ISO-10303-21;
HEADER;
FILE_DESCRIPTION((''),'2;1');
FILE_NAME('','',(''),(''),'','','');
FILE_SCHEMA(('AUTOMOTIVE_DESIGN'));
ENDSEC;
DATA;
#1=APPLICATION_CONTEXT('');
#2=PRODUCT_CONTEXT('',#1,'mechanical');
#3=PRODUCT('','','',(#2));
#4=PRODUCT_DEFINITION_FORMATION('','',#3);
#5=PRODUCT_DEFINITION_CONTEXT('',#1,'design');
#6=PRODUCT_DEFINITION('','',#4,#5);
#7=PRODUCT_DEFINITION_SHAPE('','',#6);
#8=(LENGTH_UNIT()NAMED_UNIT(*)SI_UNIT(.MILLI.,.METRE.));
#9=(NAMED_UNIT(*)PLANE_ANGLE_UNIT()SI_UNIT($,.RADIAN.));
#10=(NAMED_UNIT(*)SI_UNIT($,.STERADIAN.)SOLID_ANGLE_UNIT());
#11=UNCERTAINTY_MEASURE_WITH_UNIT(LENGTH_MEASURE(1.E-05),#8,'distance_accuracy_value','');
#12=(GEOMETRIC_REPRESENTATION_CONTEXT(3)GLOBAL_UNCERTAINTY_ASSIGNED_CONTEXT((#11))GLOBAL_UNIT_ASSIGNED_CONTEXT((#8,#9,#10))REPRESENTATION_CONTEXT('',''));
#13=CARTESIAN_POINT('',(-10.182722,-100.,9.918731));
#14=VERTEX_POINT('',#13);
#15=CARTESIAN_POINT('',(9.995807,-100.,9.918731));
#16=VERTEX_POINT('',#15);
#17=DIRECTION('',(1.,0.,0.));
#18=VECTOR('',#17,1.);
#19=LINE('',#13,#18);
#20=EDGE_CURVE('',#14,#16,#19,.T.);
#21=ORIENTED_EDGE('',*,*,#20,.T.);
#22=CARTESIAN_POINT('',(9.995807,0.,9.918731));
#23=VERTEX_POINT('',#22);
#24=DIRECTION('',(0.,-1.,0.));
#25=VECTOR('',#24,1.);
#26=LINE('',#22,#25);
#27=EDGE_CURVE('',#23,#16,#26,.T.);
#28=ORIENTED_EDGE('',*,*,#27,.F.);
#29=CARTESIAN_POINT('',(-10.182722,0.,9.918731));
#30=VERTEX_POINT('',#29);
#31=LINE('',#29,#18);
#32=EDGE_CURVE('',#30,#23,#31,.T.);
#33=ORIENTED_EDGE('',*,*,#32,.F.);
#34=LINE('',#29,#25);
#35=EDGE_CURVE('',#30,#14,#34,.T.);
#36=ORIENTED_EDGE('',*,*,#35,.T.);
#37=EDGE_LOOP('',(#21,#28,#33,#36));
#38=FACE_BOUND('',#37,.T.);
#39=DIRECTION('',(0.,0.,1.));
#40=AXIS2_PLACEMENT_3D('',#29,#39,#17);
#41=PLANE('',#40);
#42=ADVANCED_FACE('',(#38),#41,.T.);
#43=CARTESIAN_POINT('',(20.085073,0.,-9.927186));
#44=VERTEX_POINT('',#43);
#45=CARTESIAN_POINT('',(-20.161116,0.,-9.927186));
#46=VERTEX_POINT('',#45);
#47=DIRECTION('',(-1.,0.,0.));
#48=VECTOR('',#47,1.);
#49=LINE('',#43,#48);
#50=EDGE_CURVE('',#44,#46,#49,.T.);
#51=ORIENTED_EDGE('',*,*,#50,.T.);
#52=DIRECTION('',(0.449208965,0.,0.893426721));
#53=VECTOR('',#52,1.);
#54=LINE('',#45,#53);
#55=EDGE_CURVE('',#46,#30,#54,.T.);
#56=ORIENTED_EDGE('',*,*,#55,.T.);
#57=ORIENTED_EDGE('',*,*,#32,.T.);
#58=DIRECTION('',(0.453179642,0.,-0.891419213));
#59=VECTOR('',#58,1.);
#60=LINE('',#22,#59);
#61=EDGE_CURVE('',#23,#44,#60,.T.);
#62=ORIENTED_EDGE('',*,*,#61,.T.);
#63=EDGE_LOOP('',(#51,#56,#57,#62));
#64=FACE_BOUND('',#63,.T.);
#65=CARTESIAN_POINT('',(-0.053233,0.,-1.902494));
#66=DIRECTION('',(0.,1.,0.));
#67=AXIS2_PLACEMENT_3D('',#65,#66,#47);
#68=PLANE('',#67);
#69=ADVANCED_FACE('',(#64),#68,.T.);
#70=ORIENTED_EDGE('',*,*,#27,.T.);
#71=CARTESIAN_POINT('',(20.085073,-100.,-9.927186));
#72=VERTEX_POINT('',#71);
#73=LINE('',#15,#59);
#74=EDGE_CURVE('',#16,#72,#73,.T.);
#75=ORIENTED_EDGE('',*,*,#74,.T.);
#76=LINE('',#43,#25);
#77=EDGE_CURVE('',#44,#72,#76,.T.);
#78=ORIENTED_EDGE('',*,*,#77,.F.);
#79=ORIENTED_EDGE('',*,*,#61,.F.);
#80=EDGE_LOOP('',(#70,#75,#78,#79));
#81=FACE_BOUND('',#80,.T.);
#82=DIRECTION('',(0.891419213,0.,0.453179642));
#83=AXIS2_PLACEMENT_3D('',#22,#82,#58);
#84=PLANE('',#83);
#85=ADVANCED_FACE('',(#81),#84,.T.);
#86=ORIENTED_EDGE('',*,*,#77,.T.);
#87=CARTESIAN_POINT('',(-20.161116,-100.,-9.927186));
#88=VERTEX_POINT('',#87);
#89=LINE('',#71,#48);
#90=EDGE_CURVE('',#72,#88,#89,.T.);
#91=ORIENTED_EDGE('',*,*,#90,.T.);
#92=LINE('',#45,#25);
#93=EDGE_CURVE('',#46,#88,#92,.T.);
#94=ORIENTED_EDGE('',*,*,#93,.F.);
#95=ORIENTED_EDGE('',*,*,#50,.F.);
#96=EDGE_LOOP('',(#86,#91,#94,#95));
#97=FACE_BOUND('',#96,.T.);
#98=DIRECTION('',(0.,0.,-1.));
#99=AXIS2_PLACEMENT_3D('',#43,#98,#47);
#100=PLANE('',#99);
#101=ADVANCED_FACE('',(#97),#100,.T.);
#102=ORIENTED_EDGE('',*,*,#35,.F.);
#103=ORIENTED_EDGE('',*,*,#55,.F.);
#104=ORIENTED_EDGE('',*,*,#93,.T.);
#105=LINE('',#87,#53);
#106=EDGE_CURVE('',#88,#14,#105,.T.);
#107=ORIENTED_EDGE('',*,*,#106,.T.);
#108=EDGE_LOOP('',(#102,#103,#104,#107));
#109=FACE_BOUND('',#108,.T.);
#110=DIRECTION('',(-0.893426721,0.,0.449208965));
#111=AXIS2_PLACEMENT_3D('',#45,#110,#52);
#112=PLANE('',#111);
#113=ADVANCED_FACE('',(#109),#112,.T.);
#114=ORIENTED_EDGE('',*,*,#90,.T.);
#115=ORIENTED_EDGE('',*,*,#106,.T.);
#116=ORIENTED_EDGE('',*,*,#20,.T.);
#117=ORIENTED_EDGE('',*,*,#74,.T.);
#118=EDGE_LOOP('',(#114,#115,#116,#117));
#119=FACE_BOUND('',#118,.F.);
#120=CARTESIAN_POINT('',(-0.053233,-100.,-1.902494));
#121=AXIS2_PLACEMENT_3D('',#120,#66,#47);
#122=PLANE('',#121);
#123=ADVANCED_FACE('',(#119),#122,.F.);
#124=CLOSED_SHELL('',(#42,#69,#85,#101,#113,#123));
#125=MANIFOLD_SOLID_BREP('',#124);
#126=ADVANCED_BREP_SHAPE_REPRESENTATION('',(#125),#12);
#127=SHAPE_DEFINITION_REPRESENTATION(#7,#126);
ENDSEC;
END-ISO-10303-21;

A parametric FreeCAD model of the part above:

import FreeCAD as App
import Part
import Sketcher
Q = App.Units.Quantity

doc = App.newDocument("Part")
body = doc.addObject("PartDesign::Body", "Body")

# Sketch on XZ plane
sketch1 = doc.addObject("Sketcher::SketchObject", "Sketch")
body.addObject(sketch1)
sketch1.AttachmentSupport = (doc.XZ_Plane, [""])
sketch1.MapMode = "FlatFace"
sketch1.addGeometry(Part.LineSegment(App.Vector(9.995807, 9.918731, 0), App.Vector(-10.182722, 9.918731, 0)), False)
sketch1.addGeometry(Part.LineSegment(App.Vector(-10.182722, 9.918731, 0), App.Vector(-20.161116, -9.927186, 0)), False)
sketch1.addGeometry(Part.LineSegment(App.Vector(-20.161116, -9.927186, 0), App.Vector(20.085073, -9.927186, 0)), False)
sketch1.addGeometry(Part.LineSegment(App.Vector(20.085073, -9.927186, 0), App.Vector(9.995807, 9.918731, 0)), False)
sketch1.addConstraint(Sketcher.Constraint("Coincident", 0, 2, 1, 1))
sketch1.addConstraint(Sketcher.Constraint("Coincident", 1, 2, 2, 1))
sketch1.addConstraint(Sketcher.Constraint("Coincident", 2, 2, 3, 1))
sketch1.addConstraint(Sketcher.Constraint("Coincident", 3, 2, 0, 1))
sketch1.addConstraint(Sketcher.Constraint("Horizontal", 0))
sketch1.addConstraint(Sketcher.Constraint("Horizontal", 2))
sketch1.addConstraint(Sketcher.Constraint("DistanceX", 0, 2, 0, 1, Q("20.178529 mm")))
sketch1.addConstraint(Sketcher.Constraint("DistanceX", 2, 1, 2, 2, Q("40.246189 mm")))
sketch1.addConstraint(Sketcher.Constraint("Distance", 3, Q("22.263282 mm")))
sketch1.addConstraint(Sketcher.Constraint("DistanceY", -1, 1, 0, 2, Q("9.918731 mm")))
sketch1.addConstraint(Sketcher.Constraint("Distance", 1, Q("22.213257 mm")))
sketch1.addConstraint(Sketcher.Constraint("DistanceX", 0, 2, -1, 1, Q("10.182722 mm")))
pad1 = doc.addObject("PartDesign::Pad", "Pad")
body.addObject(pad1)
pad1.Profile = sketch1
pad1.Length = 100

doc.recompute()
